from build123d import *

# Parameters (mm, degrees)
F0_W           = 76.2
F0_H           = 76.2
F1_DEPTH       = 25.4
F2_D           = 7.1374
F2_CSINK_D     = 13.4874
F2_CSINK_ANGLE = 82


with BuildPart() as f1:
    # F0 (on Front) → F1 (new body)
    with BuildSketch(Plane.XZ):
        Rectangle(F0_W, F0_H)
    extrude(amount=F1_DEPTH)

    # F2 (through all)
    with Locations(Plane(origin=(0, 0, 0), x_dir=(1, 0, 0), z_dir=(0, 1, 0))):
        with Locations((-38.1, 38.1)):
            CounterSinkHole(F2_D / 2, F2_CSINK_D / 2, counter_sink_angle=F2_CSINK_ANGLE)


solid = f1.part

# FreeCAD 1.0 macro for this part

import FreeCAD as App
import Part
import Sketcher
Q = App.Units.Quantity

doc = App.newDocument("Part")
body = doc.addObject("PartDesign::Body", "Body")

sketch1 = body.newObject("Sketcher::SketchObject", "Sketch")
sketch1.AttachmentSupport = (doc.getObject("XZ_Plane"), [""])
sketch1.MapMode = "FlatFace"
sketch1.addGeometry([
    Part.LineSegment(App.Vector(-38, 38, 0), App.Vector(-38, -38, 0)),
    Part.LineSegment(App.Vector(-38, -38, 0), App.Vector(38, -38, 0)),
    Part.LineSegment(App.Vector(38, -38, 0), App.Vector(38, 38, 0)),
    Part.LineSegment(App.Vector(38, 38, 0), App.Vector(-38, 38, 0)),
], False)
sketch1.addConstraint([
    Sketcher.Constraint("Coincident", 0, 2, 1, 1),
    Sketcher.Constraint("Coincident", 1, 2, 2, 1),
    Sketcher.Constraint("Coincident", 2, 2, 3, 1),
    Sketcher.Constraint("Coincident", 3, 2, 0, 1),
    Sketcher.Constraint("Vertical", 0),
    Sketcher.Constraint("Horizontal", 1),
    Sketcher.Constraint("Vertical", 2),
    Sketcher.Constraint("Horizontal", 3),
    Sketcher.Constraint("Symmetric", 0, 2, 2, 2, -1, 1),
    Sketcher.Constraint("Equal", 3, 0),
    Sketcher.Constraint("DistanceX", 1, 1, 1, 2, Q("3 in")),
])
pad1 = body.newObject("PartDesign::Pad", "Pad")
pad1.Profile = sketch1
pad1.Length = Q("1 in")

sketch2 = body.newObject("Sketcher::SketchObject", "Sketch001")
sketch2.AttachmentSupport = (doc.getObject("XZ_Plane"), [""])
sketch2.MapMode = "FlatFace"
sketch2.addGeometry(Part.Circle(App.Vector(-38.1, -38.1, 0), App.Vector(0, 0, 1), 3.6), False)
sketch2.addConstraint([
    Sketcher.Constraint("Diameter", 0, Q("0.281 in")),
    Sketcher.Constraint("DistanceX", 0, 3, -1, 1, Q("1.5 in")),
    Sketcher.Constraint("DistanceY", 0, 3, -1, 1, Q("1.5 in")),
])
doc.recompute()
hole = body.newObject("PartDesign::Hole", "Hole")
hole.Profile = sketch2
hole.ThreadType = "None"
hole.Diameter = Q("0.281 in")
hole.DepthType = "ThroughAll"
hole.HoleCutType = "Countersink"
hole.HoleCutDiameter = Q("0.531 in")
hole.HoleCutCountersinkAngle = 82
hole.Reversed = True

doc.recompute()
